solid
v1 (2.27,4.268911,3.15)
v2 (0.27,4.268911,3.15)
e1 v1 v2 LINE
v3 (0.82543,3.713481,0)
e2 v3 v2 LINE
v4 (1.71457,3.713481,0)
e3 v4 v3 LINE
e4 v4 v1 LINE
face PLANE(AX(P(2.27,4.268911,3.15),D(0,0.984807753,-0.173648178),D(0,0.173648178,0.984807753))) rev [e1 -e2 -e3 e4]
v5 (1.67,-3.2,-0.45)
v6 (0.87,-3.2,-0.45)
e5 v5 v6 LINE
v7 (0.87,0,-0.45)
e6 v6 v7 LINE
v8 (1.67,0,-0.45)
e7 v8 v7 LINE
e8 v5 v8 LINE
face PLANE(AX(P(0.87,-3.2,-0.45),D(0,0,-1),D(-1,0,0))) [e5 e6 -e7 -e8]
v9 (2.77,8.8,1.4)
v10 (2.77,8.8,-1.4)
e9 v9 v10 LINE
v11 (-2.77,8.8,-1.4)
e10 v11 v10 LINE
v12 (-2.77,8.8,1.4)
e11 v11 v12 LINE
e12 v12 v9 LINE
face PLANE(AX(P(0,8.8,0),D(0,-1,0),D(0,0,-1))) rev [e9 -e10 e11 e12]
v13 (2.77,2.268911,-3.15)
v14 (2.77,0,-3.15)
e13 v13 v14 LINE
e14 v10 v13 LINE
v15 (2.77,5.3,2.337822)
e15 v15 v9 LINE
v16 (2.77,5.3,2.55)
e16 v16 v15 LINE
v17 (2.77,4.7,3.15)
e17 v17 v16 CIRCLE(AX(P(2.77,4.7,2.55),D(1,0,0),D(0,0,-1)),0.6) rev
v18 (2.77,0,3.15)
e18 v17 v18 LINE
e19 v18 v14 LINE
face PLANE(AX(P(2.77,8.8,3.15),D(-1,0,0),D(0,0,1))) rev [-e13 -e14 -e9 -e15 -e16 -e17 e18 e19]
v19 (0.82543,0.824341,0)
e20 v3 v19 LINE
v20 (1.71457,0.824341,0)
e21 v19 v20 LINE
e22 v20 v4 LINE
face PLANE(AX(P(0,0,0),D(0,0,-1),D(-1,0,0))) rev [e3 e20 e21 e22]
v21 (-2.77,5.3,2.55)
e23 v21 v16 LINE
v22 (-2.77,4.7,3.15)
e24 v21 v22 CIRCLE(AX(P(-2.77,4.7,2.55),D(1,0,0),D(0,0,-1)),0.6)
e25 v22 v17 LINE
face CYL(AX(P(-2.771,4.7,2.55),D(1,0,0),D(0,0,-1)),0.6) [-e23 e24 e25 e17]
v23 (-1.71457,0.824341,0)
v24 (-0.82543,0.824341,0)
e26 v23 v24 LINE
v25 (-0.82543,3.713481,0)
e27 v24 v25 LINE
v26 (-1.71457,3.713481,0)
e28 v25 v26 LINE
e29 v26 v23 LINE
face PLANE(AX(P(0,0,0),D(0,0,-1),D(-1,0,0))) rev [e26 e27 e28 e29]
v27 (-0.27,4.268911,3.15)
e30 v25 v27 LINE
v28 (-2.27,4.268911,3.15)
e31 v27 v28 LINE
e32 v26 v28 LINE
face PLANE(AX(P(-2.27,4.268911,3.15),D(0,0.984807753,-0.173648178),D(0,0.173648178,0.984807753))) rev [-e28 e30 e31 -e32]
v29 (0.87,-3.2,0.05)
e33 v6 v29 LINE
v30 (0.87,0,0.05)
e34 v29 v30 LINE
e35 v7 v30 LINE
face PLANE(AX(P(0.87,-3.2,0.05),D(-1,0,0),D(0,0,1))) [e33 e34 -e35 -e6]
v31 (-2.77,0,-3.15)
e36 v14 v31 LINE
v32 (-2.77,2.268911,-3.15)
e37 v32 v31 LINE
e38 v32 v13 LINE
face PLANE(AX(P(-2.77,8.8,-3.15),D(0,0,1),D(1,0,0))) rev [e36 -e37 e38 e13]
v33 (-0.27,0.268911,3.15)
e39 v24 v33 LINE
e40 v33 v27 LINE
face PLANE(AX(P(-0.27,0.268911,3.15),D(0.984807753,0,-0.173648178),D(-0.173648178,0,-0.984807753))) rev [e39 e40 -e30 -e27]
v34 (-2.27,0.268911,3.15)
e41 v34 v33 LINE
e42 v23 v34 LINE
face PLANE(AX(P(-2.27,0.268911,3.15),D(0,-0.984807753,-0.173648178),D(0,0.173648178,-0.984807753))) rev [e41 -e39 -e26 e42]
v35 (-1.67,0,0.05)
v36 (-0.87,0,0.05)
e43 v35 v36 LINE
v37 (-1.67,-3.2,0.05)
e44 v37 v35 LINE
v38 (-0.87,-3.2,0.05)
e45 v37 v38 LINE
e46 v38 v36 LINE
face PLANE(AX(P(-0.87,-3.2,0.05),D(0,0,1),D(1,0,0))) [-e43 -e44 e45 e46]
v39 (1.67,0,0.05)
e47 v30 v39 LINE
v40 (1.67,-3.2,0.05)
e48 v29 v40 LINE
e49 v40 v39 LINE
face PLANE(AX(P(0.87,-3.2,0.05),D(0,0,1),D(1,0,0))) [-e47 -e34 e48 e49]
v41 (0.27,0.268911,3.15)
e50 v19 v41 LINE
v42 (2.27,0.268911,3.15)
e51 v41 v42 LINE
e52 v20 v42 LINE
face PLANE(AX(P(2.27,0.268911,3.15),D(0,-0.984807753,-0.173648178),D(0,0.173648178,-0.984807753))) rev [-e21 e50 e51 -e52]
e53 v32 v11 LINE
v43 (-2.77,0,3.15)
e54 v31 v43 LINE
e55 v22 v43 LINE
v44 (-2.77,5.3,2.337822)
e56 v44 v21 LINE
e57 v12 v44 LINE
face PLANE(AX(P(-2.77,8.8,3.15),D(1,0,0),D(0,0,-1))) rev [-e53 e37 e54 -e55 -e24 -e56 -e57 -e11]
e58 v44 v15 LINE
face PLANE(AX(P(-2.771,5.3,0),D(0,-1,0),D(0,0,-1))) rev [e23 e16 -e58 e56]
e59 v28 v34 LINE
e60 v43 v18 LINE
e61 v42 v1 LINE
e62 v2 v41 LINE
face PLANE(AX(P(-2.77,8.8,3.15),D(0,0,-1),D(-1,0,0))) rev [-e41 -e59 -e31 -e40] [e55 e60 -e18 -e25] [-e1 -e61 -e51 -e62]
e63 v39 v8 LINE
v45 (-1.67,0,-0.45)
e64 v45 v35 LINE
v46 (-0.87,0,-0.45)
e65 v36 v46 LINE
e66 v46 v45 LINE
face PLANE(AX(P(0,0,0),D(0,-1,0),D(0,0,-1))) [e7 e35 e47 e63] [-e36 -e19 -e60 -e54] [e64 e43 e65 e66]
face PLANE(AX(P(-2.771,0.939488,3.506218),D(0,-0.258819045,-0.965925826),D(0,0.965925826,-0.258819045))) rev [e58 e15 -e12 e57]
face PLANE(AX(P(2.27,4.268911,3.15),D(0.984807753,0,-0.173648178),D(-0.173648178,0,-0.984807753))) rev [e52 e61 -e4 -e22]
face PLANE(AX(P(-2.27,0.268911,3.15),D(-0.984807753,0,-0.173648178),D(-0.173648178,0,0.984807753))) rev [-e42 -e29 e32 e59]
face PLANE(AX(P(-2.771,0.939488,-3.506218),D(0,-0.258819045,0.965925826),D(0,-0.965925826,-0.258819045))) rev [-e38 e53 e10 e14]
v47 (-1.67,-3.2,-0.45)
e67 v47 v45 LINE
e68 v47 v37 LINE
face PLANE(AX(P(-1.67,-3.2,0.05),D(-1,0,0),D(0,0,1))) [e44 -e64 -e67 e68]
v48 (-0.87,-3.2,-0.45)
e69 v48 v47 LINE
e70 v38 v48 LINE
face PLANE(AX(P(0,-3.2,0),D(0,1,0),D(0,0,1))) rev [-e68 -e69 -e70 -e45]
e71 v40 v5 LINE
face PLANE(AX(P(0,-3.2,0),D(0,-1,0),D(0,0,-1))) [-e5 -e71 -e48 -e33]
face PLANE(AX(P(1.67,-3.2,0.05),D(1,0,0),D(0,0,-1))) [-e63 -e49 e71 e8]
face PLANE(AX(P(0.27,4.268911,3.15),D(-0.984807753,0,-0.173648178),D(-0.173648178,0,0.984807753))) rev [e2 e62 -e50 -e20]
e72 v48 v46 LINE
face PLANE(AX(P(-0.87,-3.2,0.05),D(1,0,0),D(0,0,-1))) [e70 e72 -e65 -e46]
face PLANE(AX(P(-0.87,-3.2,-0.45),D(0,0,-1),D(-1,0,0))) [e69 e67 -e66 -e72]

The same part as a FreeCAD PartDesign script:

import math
import FreeCAD as App
import Part
import Sketcher
Q = App.Units.Quantity


def add_polygon(sketch, points):
    """Adds a closed chain of lines whose ends are joined by coincident constraints."""
    first, n = sketch.GeometryCount, len(points)
    for a, b in zip(points, points[1:] + points[:1]):
        sketch.addGeometry(Part.LineSegment(App.Vector(*a, 0), App.Vector(*b, 0)), False)
    for i in range(n):
        sketch.addConstraint(Sketcher.Constraint("Coincident", first + i, 2, first + (i + 1) % n, 1))

doc = App.newDocument("Part")
body = doc.addObject("PartDesign::Body", "Body")

sketch1 = body.newObject("Sketcher::SketchObject", "Sketch")
sketch1.AttachmentSupport = (doc.getObject("XZ_Plane"), [""])
sketch1.MapMode = "FlatFace"
add_polygon(sketch1, [(-3, -3), (-3, 3), (3, 3), (3, -3)])
sketch1.addConstraint([
    Sketcher.Constraint("Vertical", 0),
    Sketcher.Constraint("Horizontal", 1),
    Sketcher.Constraint("Vertical", 2),
    Sketcher.Constraint("Horizontal", 3),
    Sketcher.Constraint("Symmetric", 0, 2, 2, 2, -1, 1),
    Sketcher.Constraint("DistanceY", 0, 1, 0, 2, Q("6.3 mm")),
    Sketcher.Constraint("DistanceX", 1, 1, 1, 2, Q("5.54 mm")),
])
pad1 = body.newObject("PartDesign::Pad", "Pad")
pad1.Profile = sketch1
pad1.Length = 8.8
pad1.Reversed = True

sketch2 = body.newObject("Sketcher::SketchObject", "Sketch001")
sketch2.AttachmentSupport = (doc.getObject("XZ_Plane"), [""])
sketch2.MapMode = "FlatFace"
add_polygon(sketch2, [(0.9, -0.5), (0.9, 0.1), (1.7, 0.1), (1.7, -0.5)])
add_polygon(sketch2, [(-1.7, -0.5), (-1.7, 0.1), (-0.9, 0.1), (-0.9, -0.5)])
sketch2.addConstraint([
    Sketcher.Constraint("Vertical", 0),
    Sketcher.Constraint("Horizontal", 1),
    Sketcher.Constraint("Vertical", 2),
    Sketcher.Constraint("Horizontal", 3),
    Sketcher.Constraint("Vertical", 4),
    Sketcher.Constraint("Horizontal", 5),
    Sketcher.Constraint("Vertical", 6),
    Sketcher.Constraint("Horizontal", 7),
    Sketcher.Constraint("Symmetric", 1, 2, 4, 2, -2),
    Sketcher.Constraint("Symmetric", 3, 2, 6, 2, -2),
    Sketcher.Constraint("DistanceX", 1, 1, 1, 2, Q("0.8 mm")),
    Sketcher.Constraint("DistanceY", 0, 1, 0, 2, Q("0.5 mm")),
    Sketcher.Constraint("DistanceX", -1, 1, 0, 2, Q("0.87 mm")),
    Sketcher.Constraint("DistanceY", -1, 1, 0, 2, Q("0.05 mm")),
])
pad2 = body.newObject("PartDesign::Pad", "Pad001")
pad2.Profile = sketch2
pad2.Length = 3.2

sketch3 = body.newObject("Sketcher::SketchObject", "Sketch002")
sketch3.AttachmentSupport = (doc.getObject("YZ_Plane"), [""])
sketch3.MapMode = "FlatFace"
sketch3.AttachmentOffset = App.Placement(App.Vector(0, 0, 2.77), App.Rotation())
sketch3.addGeometry([
    Part.ArcOfCircle(Part.Circle(App.Vector(4.7, 2.55, 0), App.Vector(0, 0, 1), 0.6), math.radians(0), math.radians(90)),
    Part.LineSegment(App.Vector(5.3, 2.55, 0), App.Vector(5.3, 2.34, 0)),
    Part.LineSegment(App.Vector(5.3, 2.34, 0), App.Vector(8.8, 1.4, 0)),
    Part.LineSegment(App.Vector(8.8, 1.4, 0), App.Vector(8.8, 3.15, 0)),
    Part.LineSegment(App.Vector(8.8, 3.15, 0), App.Vector(4.7, 3.15, 0)),
], False)
sketch3.addConstraint([
    Sketcher.Constraint("Tangent", 0, 1, 1, 1),
    Sketcher.Constraint("Coincident", 1, 2, 2, 1),
    Sketcher.Constraint("Coincident", 2, 2, 3, 1),
    Sketcher.Constraint("Coincident", 3, 2, 4, 1),
    Sketcher.Constraint("Tangent", 4, 2, 0, 2),
    Sketcher.Constraint("Vertical", 1),
    Sketcher.Constraint("Vertical", 3),
    Sketcher.Constraint("Horizontal", 4),
    Sketcher.Constraint("Radius", 0, Q("0.6 mm")),
    Sketcher.Constraint("Angle", 2, Q("-15 deg")),
    Sketcher.Constraint("DistanceX", 4, 2, 4, 1, Q("4.1 mm")),
    Sketcher.Constraint("DistanceY", 3, 1, 3, 2, Q("1.75 mm")),
    Sketcher.Constraint("DistanceX", -1, 1, 0, 3, Q("4.7 mm")),
    Sketcher.Constraint("DistanceY", -1, 1, 2, 2, Q("1.4 mm")),
])
pocket1 = body.newObject("PartDesign::Pocket", "Pocket")
pocket1.Profile = sketch3
pocket1.Type = "UpToFirst"

sketch4 = body.newObject("Sketcher::SketchObject", "Sketch003")
sketch4.AttachmentSupport = (doc.getObject("YZ_Plane"), [""])
sketch4.MapMode = "FlatFace"
sketch4.AttachmentOffset = App.Placement(App.Vector(0, 0, 2.77), App.Rotation())
add_polygon(sketch4, [(8.8, -3.1), (8.8, -1.4), (2.3, -3.1)])
sketch4.addConstraint([
    Sketcher.Constraint("Vertical", 0),
    Sketcher.Constraint("Horizontal", 2),
    Sketcher.Constraint("Angle", 1, Q("-165 deg")),
    Sketcher.Constraint("DistanceY", 0, 1, 0, 2, Q("1.75 mm")),
    Sketcher.Constraint("DistanceX", -1, 1, 0, 2, Q("8.8 mm")),
    Sketcher.Constraint("DistanceY", 0, 2, -1, 1, Q("1.4 mm")),
])
pocket2 = body.newObject("PartDesign::Pocket", "Pocket001")
pocket2.Profile = sketch4
pocket2.Type = "UpToFirst"

sketch5 = body.newObject("Sketcher::SketchObject", "Sketch004")
sketch5.AttachmentSupport = (doc.getObject("XY_Plane"), [""])
sketch5.MapMode = "FlatFace"
sketch5.AttachmentOffset = App.Placement(App.Vector(0, 0, 3.15), App.Rotation())
add_polygon(sketch5, [(-2.3, 4.3), (-2.3, 0.3), (-0.3, 0.3), (-0.3, 4.3)])
add_polygon(sketch5, [(0.3, 4.3), (0.3, 0.3), (2.3, 0.3), (2.3, 4.3)])
sketch5.addConstraint([
    Sketcher.Constraint("Vertical", 0),
    Sketcher.Constraint("Horizontal", 1),
    Sketcher.Constraint("Vertical", 2),
    Sketcher.Constraint("Horizontal", 3),
    Sketcher.Constraint("Vertical", 4),
    Sketcher.Constraint("Horizontal", 5),
    Sketcher.Constraint("Vertical", 6),
    Sketcher.Constraint("Horizontal", 7),
    Sketcher.Constraint("Symmetric", 1, 2, 4, 2, -2),
    Sketcher.Constraint("Symmetric", 3, 2, 6, 2, -2),
    Sketcher.Constraint("DistanceX", 1, 1, 1, 2, Q("2 mm")),
    Sketcher.Constraint("DistanceY", 0, 2, 0, 1, Q("4 mm")),
    Sketcher.Constraint("DistanceX", 0, 2, -1, 1, Q("2.27 mm")),
    Sketcher.Constraint("DistanceY", -1, 1, 0, 2, Q("0.268911 mm")),
])
pocket3 = body.newObject("PartDesign::Pocket", "Pocket002")
pocket3.Profile = sketch5
pocket3.Length = 3.15
pocket3.TaperAngle = -10

doc.recompute()
